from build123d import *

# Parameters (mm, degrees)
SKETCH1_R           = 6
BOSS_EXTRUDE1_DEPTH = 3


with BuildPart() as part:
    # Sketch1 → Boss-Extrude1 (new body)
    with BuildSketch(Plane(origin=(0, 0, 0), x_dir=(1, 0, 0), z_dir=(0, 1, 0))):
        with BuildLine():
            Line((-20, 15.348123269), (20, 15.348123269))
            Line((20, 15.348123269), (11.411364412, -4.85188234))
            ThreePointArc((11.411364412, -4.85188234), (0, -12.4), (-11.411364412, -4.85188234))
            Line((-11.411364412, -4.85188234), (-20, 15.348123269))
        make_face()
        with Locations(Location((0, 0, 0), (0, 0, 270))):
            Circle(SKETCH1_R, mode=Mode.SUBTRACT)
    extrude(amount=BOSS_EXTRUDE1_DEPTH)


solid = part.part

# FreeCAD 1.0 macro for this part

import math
import FreeCAD as App
import Part
import Sketcher
from FreeCAD import Vector

doc = App.newDocument("Part")
body = doc.addObject("PartDesign::Body", "Body")

sketch1 = body.newObject("Sketcher::SketchObject", "Sketch")
sketch1.AttachmentSupport = (doc.getObject("XZ_Plane"), [""])
sketch1.MapMode = "FlatFace"
sketch1.addGeometry(Part.LineSegment(Vector(20, -15.348123, 0), Vector(-20, -15.348123, 0)), False)
sketch1.addGeometry(Part.LineSegment(Vector(-20, -15.348123, 0), Vector(-11.411364, 4.851882, 0)), False)
sketch1.addGeometry(Part.ArcOfCircle(Part.Circle(Vector(0, 0, 0), Vector(0, 0, 1), 12.4), math.radians(23.03422), math.radians(156.96578)), False)
sketch1.addGeometry(Part.LineSegment(Vector(11.411364, 4.851882, 0), Vector(20, -15.348123, 0)), False)
sketch1.addGeometry(Part.Circle(Vector(0, 0, 0), Vector(0, 0, 1), 6), False)
sketch1.addConstraint(Sketcher.Constraint("Coincident", 0, 2, 1, 1))
sketch1.addConstraint(Sketcher.Constraint("Tangent", 1, 2, 2, 2))
sketch1.addConstraint(Sketcher.Constraint("Tangent", 2, 1, 3, 1))
sketch1.addConstraint(Sketcher.Constraint("Coincident", 3, 2, 0, 1))
sketch1.addConstraint(Sketcher.Constraint("Horizontal", 0))
sketch1.addConstraint(Sketcher.Constraint("Coincident", 2, 3, -1, 1))
sketch1.addConstraint(Sketcher.Constraint("Coincident", 4, 3, -1, 1))
sketch1.addConstraint(Sketcher.Constraint("Horizontal", 1, 2, 2, 1))
sketch1.addConstraint(Sketcher.Constraint("Diameter", 4, 12.0))
sketch1.addConstraint(Sketcher.Constraint("Radius", 2, 12.4))
sketch1.addConstraint(Sketcher.Constraint("DistanceX", 0, 2, 0, 1, 40.0))
sketch1.addConstraint(Sketcher.Constraint("DistanceX", 1, 2, 2, 1, 22.822729))
pad1 = body.newObject("PartDesign::Pad", "Pad")
pad1.Profile = sketch1
pad1.Length = 3
pad1.Reversed = True

doc.recompute()
